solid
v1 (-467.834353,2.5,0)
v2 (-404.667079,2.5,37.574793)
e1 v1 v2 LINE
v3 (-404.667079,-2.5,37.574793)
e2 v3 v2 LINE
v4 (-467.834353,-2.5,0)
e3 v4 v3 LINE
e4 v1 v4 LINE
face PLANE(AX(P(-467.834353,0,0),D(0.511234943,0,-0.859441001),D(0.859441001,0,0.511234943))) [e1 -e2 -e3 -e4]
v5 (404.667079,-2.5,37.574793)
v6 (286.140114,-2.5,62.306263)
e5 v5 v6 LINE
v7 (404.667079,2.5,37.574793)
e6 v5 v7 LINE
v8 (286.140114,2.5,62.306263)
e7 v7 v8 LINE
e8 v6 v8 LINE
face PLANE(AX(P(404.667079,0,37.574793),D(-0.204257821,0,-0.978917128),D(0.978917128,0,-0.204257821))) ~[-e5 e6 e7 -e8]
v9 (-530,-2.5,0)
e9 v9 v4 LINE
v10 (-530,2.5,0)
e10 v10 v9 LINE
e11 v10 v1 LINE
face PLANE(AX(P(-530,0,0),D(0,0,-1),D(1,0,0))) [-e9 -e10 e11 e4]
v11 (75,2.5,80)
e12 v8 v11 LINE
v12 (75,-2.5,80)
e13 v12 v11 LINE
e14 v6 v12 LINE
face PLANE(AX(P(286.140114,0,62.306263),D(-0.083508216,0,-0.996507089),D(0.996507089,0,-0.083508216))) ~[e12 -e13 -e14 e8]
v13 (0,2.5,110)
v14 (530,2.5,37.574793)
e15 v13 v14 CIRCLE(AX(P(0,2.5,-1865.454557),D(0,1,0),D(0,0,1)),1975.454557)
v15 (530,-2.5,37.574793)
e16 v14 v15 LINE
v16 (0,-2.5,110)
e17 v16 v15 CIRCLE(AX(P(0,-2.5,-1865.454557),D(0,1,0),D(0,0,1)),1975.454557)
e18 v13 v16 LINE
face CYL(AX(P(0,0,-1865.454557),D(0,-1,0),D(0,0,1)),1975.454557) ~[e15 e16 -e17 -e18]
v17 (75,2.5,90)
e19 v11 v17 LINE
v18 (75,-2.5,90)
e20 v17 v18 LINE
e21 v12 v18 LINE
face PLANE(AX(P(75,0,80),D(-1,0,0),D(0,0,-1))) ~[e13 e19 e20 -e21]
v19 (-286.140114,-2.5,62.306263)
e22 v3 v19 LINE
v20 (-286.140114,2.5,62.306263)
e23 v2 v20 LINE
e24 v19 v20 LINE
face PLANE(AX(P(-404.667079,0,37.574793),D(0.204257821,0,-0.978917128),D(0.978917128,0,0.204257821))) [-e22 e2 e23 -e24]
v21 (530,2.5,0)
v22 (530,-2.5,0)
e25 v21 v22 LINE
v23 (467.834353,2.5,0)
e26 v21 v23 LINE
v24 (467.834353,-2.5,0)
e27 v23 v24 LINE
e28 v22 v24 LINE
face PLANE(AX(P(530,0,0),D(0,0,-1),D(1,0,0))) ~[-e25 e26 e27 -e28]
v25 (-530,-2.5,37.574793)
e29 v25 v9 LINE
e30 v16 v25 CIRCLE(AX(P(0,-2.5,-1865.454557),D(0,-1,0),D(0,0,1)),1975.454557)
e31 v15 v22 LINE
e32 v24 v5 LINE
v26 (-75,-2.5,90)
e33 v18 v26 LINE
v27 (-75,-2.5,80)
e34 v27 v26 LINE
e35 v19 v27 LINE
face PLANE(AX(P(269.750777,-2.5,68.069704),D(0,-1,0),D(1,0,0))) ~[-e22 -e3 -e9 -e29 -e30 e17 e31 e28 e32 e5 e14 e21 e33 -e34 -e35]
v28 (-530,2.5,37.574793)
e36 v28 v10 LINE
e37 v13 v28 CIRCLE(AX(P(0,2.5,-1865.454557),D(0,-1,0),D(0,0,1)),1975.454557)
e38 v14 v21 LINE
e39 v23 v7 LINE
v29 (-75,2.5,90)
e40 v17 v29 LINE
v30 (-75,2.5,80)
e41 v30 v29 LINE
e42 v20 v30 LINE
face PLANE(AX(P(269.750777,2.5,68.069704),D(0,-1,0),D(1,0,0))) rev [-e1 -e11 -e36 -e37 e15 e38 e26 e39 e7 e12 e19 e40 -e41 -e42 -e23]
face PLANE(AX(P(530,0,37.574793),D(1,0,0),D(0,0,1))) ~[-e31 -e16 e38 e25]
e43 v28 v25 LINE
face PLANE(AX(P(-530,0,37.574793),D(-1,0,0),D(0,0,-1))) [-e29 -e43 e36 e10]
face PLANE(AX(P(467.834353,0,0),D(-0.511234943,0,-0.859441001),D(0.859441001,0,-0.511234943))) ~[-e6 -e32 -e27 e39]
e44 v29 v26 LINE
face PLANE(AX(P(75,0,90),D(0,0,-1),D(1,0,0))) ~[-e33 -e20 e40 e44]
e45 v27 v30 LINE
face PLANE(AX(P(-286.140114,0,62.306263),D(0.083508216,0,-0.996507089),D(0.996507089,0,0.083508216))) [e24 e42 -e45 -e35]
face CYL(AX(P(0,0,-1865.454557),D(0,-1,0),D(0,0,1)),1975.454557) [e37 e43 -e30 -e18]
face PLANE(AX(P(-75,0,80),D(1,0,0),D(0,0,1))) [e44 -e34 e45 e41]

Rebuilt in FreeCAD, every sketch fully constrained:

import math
import FreeCAD as App
import Part
import Sketcher
from FreeCAD import Vector

doc = App.newDocument("Part")
body = doc.addObject("PartDesign::Body", "Body")

sketch1 = body.newObject("Sketcher::SketchObject", "Sketch")
sketch1.AttachmentSupport = (doc.getObject("XZ_Plane"), [""])
sketch1.MapMode = "FlatFace"
sketch1.addGeometry([
    Part.LineSegment(Vector(-75, 80, 0), Vector(-75, 90, 0)),
    Part.LineSegment(Vector(-75, 90, 0), Vector(0, 90, 0)),
    Part.LineSegment(Vector(0, 90, 0), Vector(0, 110, 0)),
    Part.ArcOfCircle(Part.Circle(Vector(0, -1865, 0), Vector(0, 0, 1), 1975), math.radians(90), math.radians(105.56)),
    Part.LineSegment(Vector(-530, 38, 0), Vector(-530, 0, 0)),
    Part.LineSegment(Vector(-530, 0, 0), Vector(-468, 0, 0)),
    Part.LineSegment(Vector(-468, 0, 0), Vector(-405, 38, 0)),
    Part.LineSegment(Vector(-405, 38, 0), Vector(-286, 62, 0)),
    Part.LineSegment(Vector(-286, 62, 0), Vector(-75, 80, 0)),
], False)
sketch1.addConstraint([
    Sketcher.Constraint("Coincident", 0, 2, 1, 1),
    Sketcher.Constraint("Coincident", 1, 2, 2, 1),
    Sketcher.Constraint("Coincident", 2, 2, 3, 1),
    Sketcher.Constraint("Coincident", 3, 2, 4, 1),
    Sketcher.Constraint("Coincident", 4, 2, 5, 1),
    Sketcher.Constraint("Coincident", 5, 2, 6, 1),
    Sketcher.Constraint("Coincident", 6, 2, 7, 1),
    Sketcher.Constraint("Coincident", 7, 2, 8, 1),
    Sketcher.Constraint("Coincident", 8, 2, 0, 1),
    Sketcher.Constraint("Vertical", 0),
    Sketcher.Constraint("Horizontal", 1),
    Sketcher.Constraint("Vertical", 2),
    Sketcher.Constraint("Vertical", 4),
    Sketcher.Constraint("Horizontal", 5),
    Sketcher.Constraint("PointOnObject", 3, 3, -2),
    Sketcher.Constraint("PointOnObject", 1, 2, -2),
    Sketcher.Constraint("PointOnObject", 4, 2, -1),
    Sketcher.Constraint("DistanceX", 1, 1, 1, 2, 75.0),
    Sketcher.Constraint("DistanceY", 0, 1, 0, 2, 10.0),
    Sketcher.Constraint("DistanceY", 2, 1, 2, 2, 20.0),
    Sketcher.Constraint("DistanceY", -1, 1, 0, 2, 90.0),
    Sketcher.Constraint("DistanceX", 4, 2, -1, 1, 530.0),
    Sketcher.Constraint("Radius", 3, 1975.454557),
    Sketcher.Constraint("DistanceX", 5, 1, 5, 2, 62.165647),
    Sketcher.Constraint("DistanceX", 6, 2, -1, 1, 404.667079),
    Sketcher.Constraint("DistanceY", 6, 2, 7, 2, 24.73147),
    Sketcher.Constraint("DistanceX", 5, 2, 7, 2, 181.694239),
    Sketcher.Constraint("Distance", 6, 73.498092),
])
pad1 = body.newObject("PartDesign::Pad", "Pad")
pad1.Profile = sketch1
pad1.Length = 5
pad1.Midplane = True
body2 = doc.addObject("PartDesign::Body", "Body001")
doc.recompute()

body2.BaseFeature = body
doc.recompute()

mirroring = doc.addObject("Part::Mirroring", "Mirroring")
mirroring.Source = body
mirroring.Base = Vector(0, 0, 0)
mirroring.Normal = Vector(1, 0, 0)
body3 = doc.addObject("PartDesign::Body", "Body002")
body3.BaseFeature = mirroring
boolean = body2.newObject("PartDesign::Boolean", "Boolean")
boolean.Type = "Fuse"
boolean.addObjects([body3])
doc.recompute()
mirroring.Visibility = False

doc.recompute()
